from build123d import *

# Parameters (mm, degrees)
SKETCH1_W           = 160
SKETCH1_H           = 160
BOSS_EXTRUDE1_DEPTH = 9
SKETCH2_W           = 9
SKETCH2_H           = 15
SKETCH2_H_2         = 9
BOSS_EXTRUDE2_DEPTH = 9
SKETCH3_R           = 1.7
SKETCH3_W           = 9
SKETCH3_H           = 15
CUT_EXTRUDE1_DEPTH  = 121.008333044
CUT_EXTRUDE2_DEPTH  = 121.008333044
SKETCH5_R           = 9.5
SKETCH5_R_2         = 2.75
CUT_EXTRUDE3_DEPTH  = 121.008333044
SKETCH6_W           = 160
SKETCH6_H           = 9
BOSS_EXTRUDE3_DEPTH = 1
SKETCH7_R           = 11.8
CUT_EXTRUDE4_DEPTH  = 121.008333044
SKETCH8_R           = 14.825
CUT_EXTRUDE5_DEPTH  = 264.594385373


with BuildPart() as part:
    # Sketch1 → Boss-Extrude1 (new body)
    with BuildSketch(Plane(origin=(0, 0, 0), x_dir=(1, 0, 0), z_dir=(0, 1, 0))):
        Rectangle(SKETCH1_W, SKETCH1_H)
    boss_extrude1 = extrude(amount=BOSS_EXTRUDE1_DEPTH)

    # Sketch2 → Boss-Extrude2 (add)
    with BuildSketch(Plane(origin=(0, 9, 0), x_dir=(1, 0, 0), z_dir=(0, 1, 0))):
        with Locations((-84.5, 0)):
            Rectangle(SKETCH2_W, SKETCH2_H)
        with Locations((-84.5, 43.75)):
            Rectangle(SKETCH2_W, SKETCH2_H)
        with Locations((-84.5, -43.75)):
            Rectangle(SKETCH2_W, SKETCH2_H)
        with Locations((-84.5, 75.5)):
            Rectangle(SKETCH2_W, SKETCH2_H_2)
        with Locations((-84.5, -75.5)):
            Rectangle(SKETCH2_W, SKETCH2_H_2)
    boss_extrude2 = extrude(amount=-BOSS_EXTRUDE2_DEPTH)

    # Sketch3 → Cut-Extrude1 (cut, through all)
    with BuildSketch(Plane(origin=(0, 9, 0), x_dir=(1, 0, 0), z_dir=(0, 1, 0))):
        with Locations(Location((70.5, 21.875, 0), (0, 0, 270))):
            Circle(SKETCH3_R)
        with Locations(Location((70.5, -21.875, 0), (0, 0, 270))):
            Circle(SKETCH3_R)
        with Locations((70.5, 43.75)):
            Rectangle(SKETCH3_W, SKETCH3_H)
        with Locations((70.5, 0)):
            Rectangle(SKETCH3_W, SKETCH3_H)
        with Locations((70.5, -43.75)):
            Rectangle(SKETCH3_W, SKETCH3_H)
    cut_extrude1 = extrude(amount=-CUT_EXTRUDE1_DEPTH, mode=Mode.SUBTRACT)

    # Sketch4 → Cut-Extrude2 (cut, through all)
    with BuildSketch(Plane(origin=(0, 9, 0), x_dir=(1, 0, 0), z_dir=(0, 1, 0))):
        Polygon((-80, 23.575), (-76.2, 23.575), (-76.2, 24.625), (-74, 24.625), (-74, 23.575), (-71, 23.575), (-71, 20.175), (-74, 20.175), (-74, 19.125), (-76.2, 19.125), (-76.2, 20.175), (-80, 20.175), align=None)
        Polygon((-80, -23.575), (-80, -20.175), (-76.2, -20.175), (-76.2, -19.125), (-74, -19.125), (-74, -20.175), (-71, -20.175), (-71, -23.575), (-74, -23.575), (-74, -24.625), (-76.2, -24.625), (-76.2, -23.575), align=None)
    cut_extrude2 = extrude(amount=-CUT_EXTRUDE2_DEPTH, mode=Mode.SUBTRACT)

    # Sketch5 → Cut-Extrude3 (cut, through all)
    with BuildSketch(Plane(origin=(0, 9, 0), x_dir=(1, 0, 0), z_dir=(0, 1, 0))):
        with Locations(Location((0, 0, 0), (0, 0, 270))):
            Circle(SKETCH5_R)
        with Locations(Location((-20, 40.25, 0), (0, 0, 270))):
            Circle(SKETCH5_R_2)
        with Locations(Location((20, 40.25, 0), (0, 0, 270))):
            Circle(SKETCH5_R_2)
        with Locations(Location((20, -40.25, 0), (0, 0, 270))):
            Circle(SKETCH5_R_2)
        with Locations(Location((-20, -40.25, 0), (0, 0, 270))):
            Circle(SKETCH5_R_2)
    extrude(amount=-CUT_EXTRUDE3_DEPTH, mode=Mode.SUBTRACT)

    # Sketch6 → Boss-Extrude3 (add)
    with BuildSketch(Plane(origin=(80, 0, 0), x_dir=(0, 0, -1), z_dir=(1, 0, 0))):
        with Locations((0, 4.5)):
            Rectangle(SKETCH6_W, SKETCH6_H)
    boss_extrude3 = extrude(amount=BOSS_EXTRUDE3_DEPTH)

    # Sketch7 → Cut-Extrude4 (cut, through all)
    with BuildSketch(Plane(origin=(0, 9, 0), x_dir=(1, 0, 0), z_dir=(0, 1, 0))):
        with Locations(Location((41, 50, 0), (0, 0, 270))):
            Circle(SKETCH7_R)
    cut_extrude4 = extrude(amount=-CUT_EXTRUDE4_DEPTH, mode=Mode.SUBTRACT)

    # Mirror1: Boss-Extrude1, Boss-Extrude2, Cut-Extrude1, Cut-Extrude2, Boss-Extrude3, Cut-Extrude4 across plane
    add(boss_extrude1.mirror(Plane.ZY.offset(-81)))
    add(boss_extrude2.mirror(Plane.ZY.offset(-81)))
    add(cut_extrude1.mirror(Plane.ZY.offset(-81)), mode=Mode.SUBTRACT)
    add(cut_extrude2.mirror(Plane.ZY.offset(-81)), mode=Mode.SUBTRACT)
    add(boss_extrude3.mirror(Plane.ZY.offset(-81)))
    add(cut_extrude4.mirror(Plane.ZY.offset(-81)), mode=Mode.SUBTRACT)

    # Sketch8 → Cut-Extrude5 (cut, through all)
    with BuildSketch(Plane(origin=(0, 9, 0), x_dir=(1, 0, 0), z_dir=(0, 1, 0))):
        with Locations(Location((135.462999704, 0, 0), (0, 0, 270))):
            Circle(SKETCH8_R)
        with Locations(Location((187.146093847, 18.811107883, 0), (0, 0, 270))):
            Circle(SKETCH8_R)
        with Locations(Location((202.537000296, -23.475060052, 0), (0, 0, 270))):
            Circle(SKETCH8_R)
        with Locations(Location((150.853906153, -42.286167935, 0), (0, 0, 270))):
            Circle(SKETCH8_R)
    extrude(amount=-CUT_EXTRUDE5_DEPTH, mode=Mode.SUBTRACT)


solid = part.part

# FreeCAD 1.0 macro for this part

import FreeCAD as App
import Part
import Sketcher
Q = App.Units.Quantity


def add_polygon(sketch, points):
    """Adds a closed chain of lines whose ends are joined by coincident constraints."""
    first, n = sketch.GeometryCount, len(points)
    for a, b in zip(points, points[1:] + points[:1]):
        sketch.addGeometry(Part.LineSegment(App.Vector(*a, 0), App.Vector(*b, 0)), False)
    for i in range(n):
        sketch.addConstraint(Sketcher.Constraint("Coincident", first + i, 2, first + (i + 1) % n, 1))

doc = App.newDocument("Part")
body = doc.addObject("PartDesign::Body", "Body")

sketch1 = body.newObject("Sketcher::SketchObject", "Sketch")
sketch1.AttachmentSupport = (doc.getObject("XZ_Plane"), [""])
sketch1.MapMode = "FlatFace"
add_polygon(sketch1, [(-80, -80), (-80, 80), (80, 80), (80, -80)])
sketch1.addConstraint([
    Sketcher.Constraint("Vertical", 0),
    Sketcher.Constraint("Horizontal", 1),
    Sketcher.Constraint("Vertical", 2),
    Sketcher.Constraint("Horizontal", 3),
    Sketcher.Constraint("Symmetric", 0, 2, 2, 2, -1, 1),
    Sketcher.Constraint("Equal", 3, 0),
    Sketcher.Constraint("DistanceX", 1, 1, 1, 2, Q("160 mm")),
])
pad1 = body.newObject("PartDesign::Pad", "Pad")
pad1.Profile = sketch1
pad1.Length = 9
pad1.Reversed = True

sketch2 = body.newObject("Sketcher::SketchObject", "Sketch001")
sketch2.AttachmentSupport = (doc.getObject("XZ_Plane"), [""])
sketch2.MapMode = "FlatFace"
sketch2.AttachmentOffset = App.Placement(App.Vector(0, 0, -9), App.Rotation())
add_polygon(sketch2, [(-89, -8), (-89, 8), (-80, 8), (-80, -8)])
add_polygon(sketch2, [(-89, -51), (-89, -36), (-80, -36), (-80, -51)])
add_polygon(sketch2, [(-89, 36), (-89, 51), (-80, 51), (-80, 36)])
add_polygon(sketch2, [(-89, -80), (-89, -71), (-80, -71), (-80, -80)])
add_polygon(sketch2, [(-89, 71), (-89, 80), (-80, 80), (-80, 71)])
sketch2.addConstraint([
    Sketcher.Constraint("Vertical", 0),
    Sketcher.Constraint("Horizontal", 1),
    Sketcher.Constraint("Vertical", 2),
    Sketcher.Constraint("Horizontal", 3),
    Sketcher.Constraint("Vertical", 4),
    Sketcher.Constraint("Horizontal", 5),
    Sketcher.Constraint("Vertical", 6),
    Sketcher.Constraint("Horizontal", 7),
    Sketcher.Constraint("Vertical", 8),
    Sketcher.Constraint("Horizontal", 9),
    Sketcher.Constraint("Vertical", 10),
    Sketcher.Constraint("Horizontal", 11),
    Sketcher.Constraint("Vertical", 12),
    Sketcher.Constraint("Horizontal", 13),
    Sketcher.Constraint("Vertical", 14),
    Sketcher.Constraint("Horizontal", 15),
    Sketcher.Constraint("Vertical", 16),
    Sketcher.Constraint("Horizontal", 17),
    Sketcher.Constraint("Vertical", 18),
    Sketcher.Constraint("Horizontal", 19),
    Sketcher.Constraint("Symmetric", 7, 2, 8, 2, -1),
    Sketcher.Constraint("Symmetric", 5, 2, 10, 2, -1),
    Sketcher.Constraint("Symmetric", 15, 2, 16, 2, -1),
    Sketcher.Constraint("Symmetric", 13, 2, 18, 2, -1),
    Sketcher.Constraint("Vertical", 3, 2, 4, 2),
    Sketcher.Constraint("Vertical", 2, 2, 5, 2),
    Sketcher.Constraint("Vertical", 11, 2, 12, 2),
    Sketcher.Constraint("Vertical", 10, 2, 13, 2),
    Sketcher.Constraint("Equal", 2, 4),
    Sketcher.Constraint("Equal", 19, 12),
    Sketcher.Constraint("DistanceX", 1, 1, 1, 2, Q("9 mm")),
    Sketcher.Constraint("DistanceY", 0, 1, 0, 2, Q("15 mm")),
    Sketcher.Constraint("DistanceX", 0, 2, -1, 1, Q("89 mm")),
    Sketcher.Constraint("DistanceY", 12, 2, -1, 1, Q("71 mm")),
    Sketcher.Constraint("DistanceY", -1, 1, 0, 2, Q("7.5 mm")),
    Sketcher.Constraint("DistanceY", 4, 2, 8, 2, Q("87.5 mm")),
])
pad2 = body.newObject("PartDesign::Pad", "Pad001")
pad2.Profile = sketch2
pad2.Length = 9

sketch3 = body.newObject("Sketcher::SketchObject", "Sketch002")
sketch3.AttachmentSupport = (doc.getObject("XZ_Plane"), [""])
sketch3.MapMode = "FlatFace"
sketch3.AttachmentOffset = App.Placement(App.Vector(0, 0, -9), App.Rotation())
sketch3.addGeometry(Part.Circle(App.Vector(70.5, -21.9, 0), App.Vector(0, 0, 1), 1.7), False)
sketch3.addGeometry(Part.Circle(App.Vector(70.5, 21.9, 0), App.Vector(0, 0, 1), 1.7), False)
add_polygon(sketch3, [(66, -51.2), (66, -36.2), (75, -36.2), (75, -51.2)])
add_polygon(sketch3, [(66, -7.5), (66, 7.5), (75, 7.5), (75, -7.5)])
add_polygon(sketch3, [(66, 36.2), (66, 51.2), (75, 51.2), (75, 36.2)])
sketch3.addConstraint([
    Sketcher.Constraint("Vertical", 2),
    Sketcher.Constraint("Horizontal", 3),
    Sketcher.Constraint("Vertical", 4),
    Sketcher.Constraint("Horizontal", 5),
    Sketcher.Constraint("Vertical", 6),
    Sketcher.Constraint("Horizontal", 7),
    Sketcher.Constraint("Vertical", 8),
    Sketcher.Constraint("Horizontal", 9),
    Sketcher.Constraint("Vertical", 10),
    Sketcher.Constraint("Horizontal", 11),
    Sketcher.Constraint("Vertical", 12),
    Sketcher.Constraint("Horizontal", 13),
    Sketcher.Constraint("Equal", 0, 1),
    Sketcher.Constraint("Symmetric", 0, 3, 1, 3, -1),
    Sketcher.Constraint("Symmetric", 5, 2, 10, 2, -1),
    Sketcher.Constraint("Symmetric", 3, 2, 12, 2, -1),
    Sketcher.Constraint("Vertical", 5, 2, 6, 2),
    Sketcher.Constraint("Vertical", 4, 2, 7, 2),
    Sketcher.Constraint("Equal", 4, 6),
    Sketcher.Constraint("Diameter", 0, Q("3.4 mm")),
    Sketcher.Constraint("DistanceX", 3, 1, 3, 2, Q("9 mm")),
    Sketcher.Constraint("DistanceY", 2, 1, 2, 2, Q("15 mm")),
    Sketcher.Constraint("DistanceX", -1, 1, 2, 2, Q("66 mm")),
    Sketcher.Constraint("DistanceX", -1, 1, 0, 3, Q("70.5 mm")),
    Sketcher.Constraint("DistanceY", -1, 1, 6, 2, Q("7.5 mm")),
    Sketcher.Constraint("DistanceY", 2, 2, -1, 1, Q("36.25 mm")),
    Sketcher.Constraint("DistanceY", 0, 3, 1, 3, Q("43.75 mm")),
])
pocket1 = body.newObject("PartDesign::Pocket", "Pocket")
pocket1.Profile = sketch3
pocket1.Type = "ThroughAll"
pocket1.Reversed = True

sketch4 = body.newObject("Sketcher::SketchObject", "Sketch003")
sketch4.AttachmentSupport = (doc.getObject("XZ_Plane"), [""])
sketch4.MapMode = "FlatFace"
sketch4.AttachmentOffset = App.Placement(App.Vector(0, 0, -9), App.Rotation())
add_polygon(sketch4, [(-76.2, -23.6), (-80, -23.6), (-80, -20.2), (-76.2, -20.2), (-76.2, -19.1), (-74, -19.1), (-74, -20.2), (-71, -20.2), (-71, -23.6), (-74, -23.6), (-74, -24.6), (-76.2, -24.6)])
add_polygon(sketch4, [(-80, 20.2), (-80, 23.6), (-76.2, 23.6), (-76.2, 24.6), (-74, 24.6), (-74, 23.6), (-71, 23.6), (-71, 20.2), (-74, 20.2), (-74, 19.1), (-76.2, 19.1), (-76.2, 20.2)])
sketch4.addConstraint([
    Sketcher.Constraint("Horizontal", 0),
    Sketcher.Constraint("Vertical", 1),
    Sketcher.Constraint("Horizontal", 2),
    Sketcher.Constraint("Vertical", 3),
    Sketcher.Constraint("Horizontal", 4),
    Sketcher.Constraint("Vertical", 5),
    Sketcher.Constraint("Horizontal", 6),
    Sketcher.Constraint("Vertical", 7),
    Sketcher.Constraint("Horizontal", 8),
    Sketcher.Constraint("Vertical", 9),
    Sketcher.Constraint("Horizontal", 10),
    Sketcher.Constraint("Vertical", 11),
    Sketcher.Constraint("Vertical", 12),
    Sketcher.Constraint("Horizontal", 13),
    Sketcher.Constraint("Vertical", 14),
    Sketcher.Constraint("Horizontal", 15),
    Sketcher.Constraint("Vertical", 16),
    Sketcher.Constraint("Horizontal", 17),
    Sketcher.Constraint("Vertical", 18),
    Sketcher.Constraint("Horizontal", 19),
    Sketcher.Constraint("Vertical", 20),
    Sketcher.Constraint("Horizontal", 21),
    Sketcher.Constraint("Vertical", 22),
    Sketcher.Constraint("Horizontal", 23),
    Sketcher.Constraint("Symmetric", 0, 2, 12, 2, -1),
    Sketcher.Constraint("Symmetric", 10, 2, 14, 2, -1),
    Sketcher.Constraint("Symmetric", 8, 2, 16, 2, -1),
    Sketcher.Constraint("Symmetric", 6, 2, 18, 2, -1),
    Sketcher.Constraint("Symmetric", 4, 2, 20, 2, -1),
    Sketcher.Constraint("Symmetric", 2, 2, 22, 2, -1),
    Sketcher.Constraint("Horizontal", 2, 2, 5, 2),
    Sketcher.Constraint("Horizontal", 0, 2, 7, 2),
    Sketcher.Constraint("Vertical", 5, 2, 8, 2),
    Sketcher.Constraint("Vertical", 3, 2, 10, 2),
    Sketcher.Constraint("Equal", 5, 9),
    Sketcher.Constraint("DistanceX", 6, 1, 6, 2, Q("3 mm")),
    Sketcher.Constraint("DistanceX", 0, 2, 0, 1, Q("3.8 mm")),
    Sketcher.Constraint("DistanceX", 4, 1, 4, 2, Q("2.2 mm")),
    Sketcher.Constraint("DistanceY", 1, 1, 1, 2, Q("3.4 mm")),
    Sketcher.Constraint("DistanceX", 0, 2, -1, 1, Q("80 mm")),
    Sketcher.Constraint("DistanceY", 3, 1, 3, 2, Q("1.05 mm")),
    Sketcher.Constraint("DistanceY", 3, 2, 12, 2, Q("42.7 mm")),
])
pocket2 = body.newObject("PartDesign::Pocket", "Pocket001")
pocket2.Profile = sketch4
pocket2.Type = "ThroughAll"
pocket2.Reversed = True

sketch5 = body.newObject("Sketcher::SketchObject", "Sketch004")
sketch5.AttachmentSupport = (doc.getObject("XZ_Plane"), [""])
sketch5.MapMode = "FlatFace"
sketch5.AttachmentOffset = App.Placement(App.Vector(0, 0, -9), App.Rotation())
sketch5.addGeometry([
    Part.Circle(App.Vector(0, 0, 0), App.Vector(0, 0, 1), 9.5),
    Part.Circle(App.Vector(-20, -40.2, 0), App.Vector(0, 0, 1), 2.8),
    Part.Circle(App.Vector(20, -40.2, 0), App.Vector(0, 0, 1), 2.8),
    Part.Circle(App.Vector(20, 40.2, 0), App.Vector(0, 0, 1), 2.8),
    Part.Circle(App.Vector(-20, 40.2, 0), App.Vector(0, 0, 1), 2.8),
], False)
sketch5.addConstraint([
    Sketcher.Constraint("Coincident", 0, 3, -1, 1),
    Sketcher.Constraint("Equal", 1, 2),
    Sketcher.Constraint("Equal", 2, 3),
    Sketcher.Constraint("Equal", 3, 4),
    Sketcher.Constraint("Symmetric", 1, 3, 3, 3, -1, 1),
    Sketcher.Constraint("Symmetric", 2, 3, 4, 3, -1, 1),
    Sketcher.Constraint("Symmetric", 1, 3, 2, 3, -2),
    Sketcher.Constraint("Diameter", 0, Q("19 mm")),
    Sketcher.Constraint("Diameter", 1, Q("5.5 mm")),
    Sketcher.Constraint("DistanceX", 1, 3, -1, 1, Q("20 mm")),
    Sketcher.Constraint("DistanceY", 2, 3, 3, 3, Q("80.5 mm")),
])
pocket3 = body.newObject("PartDesign::Pocket", "Pocket002")
pocket3.Profile = sketch5
pocket3.Type = "ThroughAll"
pocket3.Reversed = True

sketch6 = body.newObject("Sketcher::SketchObject", "Sketch005")
sketch6.AttachmentSupport = (doc.getObject("YZ_Plane"), [""])
sketch6.MapMode = "FlatFace"
sketch6.AttachmentOffset = App.Placement(App.Vector(0, 0, 80), App.Rotation())
add_polygon(sketch6, [(9, 80), (0, 80), (0, -80), (9, -80)])
sketch6.addConstraint([
    Sketcher.Constraint("Horizontal", 0),
    Sketcher.Constraint("Vertical", 1),
    Sketcher.Constraint("Horizontal", 2),
    Sketcher.Constraint("Vertical", 3),
    Sketcher.Constraint("Symmetric", 0, 2, 1, 2, -1, 1),
    Sketcher.Constraint("DistanceX", 0, 2, 0, 1, Q("9 mm")),
    Sketcher.Constraint("DistanceY", 1, 2, 1, 1, Q("160 mm")),
])
pad3 = body.newObject("PartDesign::Pad", "Pad002")
pad3.Profile = sketch6
pad3.Length = 1

sketch7 = body.newObject("Sketcher::SketchObject", "Sketch006")
sketch7.AttachmentSupport = (doc.getObject("XZ_Plane"), [""])
sketch7.MapMode = "FlatFace"
sketch7.AttachmentOffset = App.Placement(App.Vector(0, 0, -9), App.Rotation())
sketch7.addGeometry(Part.Circle(App.Vector(41, -50, 0), App.Vector(0, 0, 1), 12), False)
sketch7.addConstraint([
    Sketcher.Constraint("Diameter", 0, Q("23.6 mm")),
    Sketcher.Constraint("DistanceX", -1, 1, 0, 3, Q("41 mm")),
    Sketcher.Constraint("DistanceY", 0, 3, -1, 1, Q("50 mm")),
])
pocket4 = body.newObject("PartDesign::Pocket", "Pocket003")
pocket4.Profile = sketch7
pocket4.Type = "ThroughAll"
pocket4.Reversed = True
doc.recompute()

datumplane = body.newObject("PartDesign::Plane", "DatumPlane")
datumplane.AttachmentSupport = (doc.getObject("YZ_Plane"), [""])
datumplane.MapMode = "FlatFace"
datumplane.AttachmentOffset = App.Placement(App.Vector(0, 0, 81), App.Rotation())
mirrored = body.newObject("PartDesign::Mirrored", "Mirrored")
mirrored.Originals = [pad1, pad2, pocket1, pocket2, pad3, pocket4]
mirrored.MirrorPlane = (datumplane, [""])
body.Tip = mirrored

sketch8 = body.newObject("Sketcher::SketchObject", "Sketch007")
sketch8.AttachmentSupport = (doc.getObject("XZ_Plane"), [""])
sketch8.MapMode = "FlatFace"
sketch8.AttachmentOffset = App.Placement(App.Vector(0, 0, -9), App.Rotation())
sketch8.addGeometry([
    Part.Circle(App.Vector(135, 0, 0), App.Vector(0, 0, 1), 15),
    Part.Circle(App.Vector(187, -19, 0), App.Vector(0, 0, 1), 15),
    Part.Circle(App.Vector(203, 23, 0), App.Vector(0, 0, 1), 15),
    Part.Circle(App.Vector(151, 42, 0), App.Vector(0, 0, 1), 15),
], False)
sketch8.addConstraint([
    Sketcher.Constraint("Equal", 0, 1),
    Sketcher.Constraint("Equal", 1, 2),
    Sketcher.Constraint("Equal", 2, 3),
    Sketcher.Constraint("PointOnObject", 0, 3, -1),
    Sketcher.Constraint("Diameter", 0, Q("29.65 mm")),
    Sketcher.Constraint("DistanceX", -1, 1, 0, 3, Q("135.463 mm")),
    Sketcher.Constraint("DistanceX", -1, 1, 2, 3, Q("202.537 mm")),
    Sketcher.Constraint("DistanceY", -1, 1, 2, 3, Q("23.47506 mm")),
    Sketcher.Constraint("DistanceX", -1, 1, 1, 3, Q("187.146094 mm")),
    Sketcher.Constraint("DistanceY", 1, 3, -1, 1, Q("18.811108 mm")),
    Sketcher.Constraint("DistanceX", -1, 1, 3, 3, Q("150.853906 mm")),
    Sketcher.Constraint("DistanceY", -1, 1, 3, 3, Q("42.286168 mm")),
])
pocket5 = body.newObject("PartDesign::Pocket", "Pocket004")
pocket5.Profile = sketch8
pocket5.Type = "ThroughAll"
pocket5.Reversed = True

doc.recompute()
